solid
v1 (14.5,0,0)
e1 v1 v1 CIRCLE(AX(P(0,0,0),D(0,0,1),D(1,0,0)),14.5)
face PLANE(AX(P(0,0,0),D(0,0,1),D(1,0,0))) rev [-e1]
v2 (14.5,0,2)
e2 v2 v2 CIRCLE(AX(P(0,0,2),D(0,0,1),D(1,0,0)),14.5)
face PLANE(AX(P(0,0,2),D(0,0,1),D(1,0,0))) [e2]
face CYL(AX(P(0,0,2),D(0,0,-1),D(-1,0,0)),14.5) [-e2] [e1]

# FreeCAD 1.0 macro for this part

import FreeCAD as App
import Part
import Sketcher

V = App.Vector
Q = App.Units.Quantity

doc = App.newDocument("Part")
params = doc.addObject("Spreadsheet::Sheet", "Params")
for row, (alias, value) in enumerate([
    ("sketch1_diameter", "29 mm"),
    ("pad1_length", "2 mm"),
], start=1):
    params.set(f"A{row}", alias)
    params.set(f"B{row}", "=" + value)
    params.setAlias(f"B{row}", alias)

body = doc.addObject("PartDesign::Body", "Body")

sketch1 = doc.addObject("Sketcher::SketchObject", "Sketch")
body.addObject(sketch1)
sketch1.AttachmentSupport = (doc.XY_Plane, [""])
sketch1.MapMode = "FlatFace"
sketch1.addGeometry(Part.Circle(V(0, 0, 0), V(0, 0, 1), 14.5), False)
sketch1.addConstraint(Sketcher.Constraint("Coincident", 0, 3, -1, 1))
sketch1.addConstraint(Sketcher.Constraint("Diameter", 0, Q("29 mm")))
sketch1.setExpression("Constraints[1]", "Params.sketch1_diameter")
pad1 = doc.addObject("PartDesign::Pad", "Pad")
body.addObject(pad1)
pad1.Profile = sketch1
pad1.setExpression("Length", "Params.pad1_length")

doc.recompute()
